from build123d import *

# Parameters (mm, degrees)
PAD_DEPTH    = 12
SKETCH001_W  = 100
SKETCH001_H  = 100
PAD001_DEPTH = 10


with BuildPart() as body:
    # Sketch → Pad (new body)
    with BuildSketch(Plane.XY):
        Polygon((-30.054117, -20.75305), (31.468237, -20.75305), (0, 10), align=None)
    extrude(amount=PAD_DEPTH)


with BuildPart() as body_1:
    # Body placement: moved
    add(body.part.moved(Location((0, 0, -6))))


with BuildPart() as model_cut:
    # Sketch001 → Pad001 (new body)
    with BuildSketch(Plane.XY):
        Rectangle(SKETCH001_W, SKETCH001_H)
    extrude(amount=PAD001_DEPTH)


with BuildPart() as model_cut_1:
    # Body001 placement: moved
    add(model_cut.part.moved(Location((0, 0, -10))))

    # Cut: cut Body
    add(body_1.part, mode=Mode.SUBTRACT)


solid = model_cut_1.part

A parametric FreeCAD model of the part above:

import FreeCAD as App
import Part
import Sketcher
from FreeCAD import Vector


def add_polygon(sketch, points):
    """Adds a closed chain of lines whose ends are joined by coincident constraints."""
    first, n = sketch.GeometryCount, len(points)
    for a, b in zip(points, points[1:] + points[:1]):
        sketch.addGeometry(Part.LineSegment(App.Vector(*a, 0), App.Vector(*b, 0)), False)
    for i in range(n):
        sketch.addConstraint(Sketcher.Constraint("Coincident", first + i, 2, first + (i + 1) % n, 1))

doc = App.newDocument("Part")
params = doc.addObject("Spreadsheet::Sheet", "Params")
for row, (alias, value) in enumerate([
    ("sketch1_length", "44 mm"),
    ("sketch1_length2", "43 mm"),
    ("pad1_length", "12 mm"),
    ("sketch2_width", "100 mm"),
    ("pad2_length", "10 mm"),
], start=1):
    params.set(f"A{row}", alias)
    params.set(f"B{row}", "=" + value)
    params.setAlias(f"B{row}", alias)

body = doc.addObject("PartDesign::Body", "Body")

# Sketch on XY plane
sketch1 = body.newObject("Sketcher::SketchObject", "Sketch")
sketch1.AttachmentSupport = (doc.getObject("XY_Plane"), [""])
sketch1.MapMode = "FlatFace"
add_polygon(sketch1, [(-30, -21), (31, -21), (0, 10)])  # lines 0-2
sketch1.addConstraint([
    Sketcher.Constraint("Horizontal", 0),
    Sketcher.Constraint("PointOnObject", 1, 2, -2),
    Sketcher.Constraint("Perpendicular", 1, 2),
    Sketcher.Constraint("Distance", 1, 44.0),
    Sketcher.Constraint("Distance", 2, 43.0),
    Sketcher.Constraint("DistanceY", -1, 1, 1, 2, 10.0),
])
sketch1.setExpression("Constraints[6]", "Params.sketch1_length")
sketch1.setExpression("Constraints[7]", "Params.sketch1_length2")
pad1 = body.newObject("PartDesign::Pad", "Pad")
pad1.Profile = sketch1
pad1.setExpression("Length", "Params.pad1_length")
body2 = doc.addObject("PartDesign::Body", "Body001")
doc.recompute()

body.Placement = App.Placement(Vector(0, 0, -6), App.Rotation(Vector(0, 0, 1), 0))
boolean = body2.newObject("PartDesign::Boolean", "Boolean")
boolean.Type = "Fuse"
boolean.addObjects([body])
body3 = doc.addObject("PartDesign::Body", "Body002")

# Sketch on XY plane
sketch2 = body3.newObject("Sketcher::SketchObject", "Sketch001")
sketch2.AttachmentSupport = (doc.getObject("XY_Plane002"), [""])
sketch2.MapMode = "FlatFace"
add_polygon(sketch2, [(-50, 50), (-50, -50), (50, -50), (50, 50)])  # lines 0-3
sketch2.addConstraint([
    Sketcher.Constraint("Vertical", 0),
    Sketcher.Constraint("Horizontal", 1),
    Sketcher.Constraint("Vertical", 2),
    Sketcher.Constraint("Horizontal", 3),
    Sketcher.Constraint("Symmetric", 0, 2, 2, 2, -1, 1),
    Sketcher.Constraint("Equal", 3, 0),
    Sketcher.Constraint("DistanceX", 1, 1, 1, 2, 100.0),
])
sketch2.setExpression("Constraints[10]", "Params.sketch2_width")
pad2 = body3.newObject("PartDesign::Pad", "Pad001")
pad2.Profile = sketch2
pad2.setExpression("Length", "Params.pad2_length")
body4 = doc.addObject("PartDesign::Body", "Body003")
doc.recompute()

body3.Placement = App.Placement(Vector(0, 0, -10), App.Rotation(Vector(0, 0, 1), 0))
boolean2 = body4.newObject("PartDesign::Boolean", "Boolean001")
boolean2.Type = "Fuse"
boolean2.addObjects([body3])
doc.recompute()

boolean3 = body4.newObject("PartDesign::Boolean", "Boolean002")
boolean3.Type = "Cut"
boolean3.addObjects([body2])

doc.recompute()
